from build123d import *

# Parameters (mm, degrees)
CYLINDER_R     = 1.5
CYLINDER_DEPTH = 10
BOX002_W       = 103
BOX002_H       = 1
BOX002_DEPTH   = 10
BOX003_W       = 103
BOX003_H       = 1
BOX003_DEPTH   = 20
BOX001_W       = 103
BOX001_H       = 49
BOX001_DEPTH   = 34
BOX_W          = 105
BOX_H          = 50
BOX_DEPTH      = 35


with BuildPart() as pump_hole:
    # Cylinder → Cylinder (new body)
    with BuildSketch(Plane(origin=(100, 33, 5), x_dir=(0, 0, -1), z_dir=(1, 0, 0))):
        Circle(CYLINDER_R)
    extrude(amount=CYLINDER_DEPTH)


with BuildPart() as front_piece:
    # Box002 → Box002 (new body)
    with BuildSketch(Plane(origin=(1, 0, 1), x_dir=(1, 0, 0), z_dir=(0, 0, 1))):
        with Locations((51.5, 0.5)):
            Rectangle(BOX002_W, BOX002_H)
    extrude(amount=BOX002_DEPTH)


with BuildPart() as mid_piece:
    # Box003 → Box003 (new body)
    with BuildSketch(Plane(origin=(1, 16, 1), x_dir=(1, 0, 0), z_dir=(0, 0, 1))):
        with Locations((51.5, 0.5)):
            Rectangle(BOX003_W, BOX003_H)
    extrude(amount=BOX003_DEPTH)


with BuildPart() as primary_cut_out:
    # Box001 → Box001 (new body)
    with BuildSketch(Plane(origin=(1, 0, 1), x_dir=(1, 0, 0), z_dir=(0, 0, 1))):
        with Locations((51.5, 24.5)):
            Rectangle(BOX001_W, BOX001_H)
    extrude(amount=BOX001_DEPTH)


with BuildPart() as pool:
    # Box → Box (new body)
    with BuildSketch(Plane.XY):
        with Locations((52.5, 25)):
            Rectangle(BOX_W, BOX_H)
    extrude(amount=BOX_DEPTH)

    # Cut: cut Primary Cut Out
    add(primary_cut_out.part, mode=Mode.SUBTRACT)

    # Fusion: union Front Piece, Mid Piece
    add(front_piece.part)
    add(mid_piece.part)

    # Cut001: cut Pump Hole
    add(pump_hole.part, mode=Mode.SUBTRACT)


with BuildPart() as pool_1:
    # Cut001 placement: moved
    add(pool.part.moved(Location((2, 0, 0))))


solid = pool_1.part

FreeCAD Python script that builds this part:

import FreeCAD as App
import Part
import Sketcher
from FreeCAD import Vector

doc = App.newDocument("Part")
body = doc.addObject("PartDesign::Body", "Body")

# Sketch on YZ plane
sketch1 = doc.addObject("Sketcher::SketchObject", "Sketch")
body.addObject(sketch1)
sketch1.AttachmentSupport = (doc.YZ_Plane, [""])
sketch1.MapMode = "FlatFace"
sketch1.AttachmentOffset = App.Placement(Vector(0, 0, 100), App.Rotation())
sketch1.addGeometry(Part.Circle(Vector(33, 5, 0), Vector(0, 0, 1), 1.5), False)
sketch1.addConstraint(Sketcher.Constraint("Diameter", 0, 3.0))
sketch1.addConstraint(Sketcher.Constraint("DistanceX", -1, 1, 0, 3, 33.0))
sketch1.addConstraint(Sketcher.Constraint("DistanceY", -1, 1, 0, 3, 5.0))
pad1 = doc.addObject("PartDesign::Pad", "Pad")
body.addObject(pad1)
pad1.Profile = sketch1
pad1.Length = 10
body2 = doc.addObject("PartDesign::Body", "Body001")

# Sketch on XY plane
sketch2 = doc.addObject("Sketcher::SketchObject", "Sketch001")
body2.addObject(sketch2)
sketch2.AttachmentSupport = (doc.getObject("XY_Plane001"), [""])
sketch2.MapMode = "FlatFace"
sketch2.AttachmentOffset = App.Placement(Vector(0, 0, 1), App.Rotation())
sketch2.addGeometry(Part.LineSegment(Vector(1, 1, 0), Vector(1, 0, 0)), False)
sketch2.addGeometry(Part.LineSegment(Vector(1, 0, 0), Vector(104, 0, 0)), False)
sketch2.addGeometry(Part.LineSegment(Vector(104, 0, 0), Vector(104, 1, 0)), False)
sketch2.addGeometry(Part.LineSegment(Vector(104, 1, 0), Vector(1, 1, 0)), False)
sketch2.addConstraint(Sketcher.Constraint("Coincident", 0, 2, 1, 1))
sketch2.addConstraint(Sketcher.Constraint("Coincident", 1, 2, 2, 1))
sketch2.addConstraint(Sketcher.Constraint("Coincident", 2, 2, 3, 1))
sketch2.addConstraint(Sketcher.Constraint("Coincident", 3, 2, 0, 1))
sketch2.addConstraint(Sketcher.Constraint("Vertical", 0))
sketch2.addConstraint(Sketcher.Constraint("Horizontal", 1))
sketch2.addConstraint(Sketcher.Constraint("Vertical", 2))
sketch2.addConstraint(Sketcher.Constraint("Horizontal", 3))
sketch2.addConstraint(Sketcher.Constraint("PointOnObject", 0, 2, -1))
sketch2.addConstraint(Sketcher.Constraint("DistanceX", 1, 1, 1, 2, 103.0))
sketch2.addConstraint(Sketcher.Constraint("DistanceY", 0, 2, 0, 1, 1.0))
sketch2.addConstraint(Sketcher.Constraint("DistanceX", -1, 1, 0, 2, 1.0))
pad2 = doc.addObject("PartDesign::Pad", "Pad001")
body2.addObject(pad2)
pad2.Profile = sketch2
pad2.Length = 10
body3 = doc.addObject("PartDesign::Body", "Body002")

# Sketch on XY plane
sketch3 = doc.addObject("Sketcher::SketchObject", "Sketch002")
body3.addObject(sketch3)
sketch3.AttachmentSupport = (doc.getObject("XY_Plane002"), [""])
sketch3.MapMode = "FlatFace"
sketch3.AttachmentOffset = App.Placement(Vector(0, 0, 1), App.Rotation())
sketch3.addGeometry(Part.LineSegment(Vector(1, 17, 0), Vector(1, 16, 0)), False)
sketch3.addGeometry(Part.LineSegment(Vector(1, 16, 0), Vector(104, 16, 0)), False)
sketch3.addGeometry(Part.LineSegment(Vector(104, 16, 0), Vector(104, 17, 0)), False)
sketch3.addGeometry(Part.LineSegment(Vector(104, 17, 0), Vector(1, 17, 0)), False)
sketch3.addConstraint(Sketcher.Constraint("Coincident", 0, 2, 1, 1))
sketch3.addConstraint(Sketcher.Constraint("Coincident", 1, 2, 2, 1))
sketch3.addConstraint(Sketcher.Constraint("Coincident", 2, 2, 3, 1))
sketch3.addConstraint(Sketcher.Constraint("Coincident", 3, 2, 0, 1))
sketch3.addConstraint(Sketcher.Constraint("Vertical", 0))
sketch3.addConstraint(Sketcher.Constraint("Horizontal", 1))
sketch3.addConstraint(Sketcher.Constraint("Vertical", 2))
sketch3.addConstraint(Sketcher.Constraint("Horizontal", 3))
sketch3.addConstraint(Sketcher.Constraint("DistanceX", 1, 1, 1, 2, 103.0))
sketch3.addConstraint(Sketcher.Constraint("DistanceY", 0, 2, 0, 1, 1.0))
sketch3.addConstraint(Sketcher.Constraint("DistanceX", -1, 1, 0, 2, 1.0))
sketch3.addConstraint(Sketcher.Constraint("DistanceY", -1, 1, 0, 2, 16.0))
pad3 = doc.addObject("PartDesign::Pad", "Pad002")
body3.addObject(pad3)
pad3.Profile = sketch3
pad3.Length = 20
body4 = doc.addObject("PartDesign::Body", "Body003")

# Sketch on XY plane
sketch4 = doc.addObject("Sketcher::SketchObject", "Sketch003")
body4.addObject(sketch4)
sketch4.AttachmentSupport = (doc.getObject("XY_Plane003"), [""])
sketch4.MapMode = "FlatFace"
sketch4.AttachmentOffset = App.Placement(Vector(0, 0, 1), App.Rotation())
sketch4.addGeometry(Part.LineSegment(Vector(1, 49, 0), Vector(1, 0, 0)), False)
sketch4.addGeometry(Part.LineSegment(Vector(1, 0, 0), Vector(104, 0, 0)), False)
sketch4.addGeometry(Part.LineSegment(Vector(104, 0, 0), Vector(104, 49, 0)), False)
sketch4.addGeometry(Part.LineSegment(Vector(104, 49, 0), Vector(1, 49, 0)), False)
sketch4.addConstraint(Sketcher.Constraint("Coincident", 0, 2, 1, 1))
sketch4.addConstraint(Sketcher.Constraint("Coincident", 1, 2, 2, 1))
sketch4.addConstraint(Sketcher.Constraint("Coincident", 2, 2, 3, 1))
sketch4.addConstraint(Sketcher.Constraint("Coincident", 3, 2, 0, 1))
sketch4.addConstraint(Sketcher.Constraint("Vertical", 0))
sketch4.addConstraint(Sketcher.Constraint("Horizontal", 1))
sketch4.addConstraint(Sketcher.Constraint("Vertical", 2))
sketch4.addConstraint(Sketcher.Constraint("Horizontal", 3))
sketch4.addConstraint(Sketcher.Constraint("PointOnObject", 0, 2, -1))
sketch4.addConstraint(Sketcher.Constraint("DistanceX", 1, 1, 1, 2, 103.0))
sketch4.addConstraint(Sketcher.Constraint("DistanceY", 0, 2, 0, 1, 49.0))
sketch4.addConstraint(Sketcher.Constraint("DistanceX", -1, 1, 0, 2, 1.0))
pad4 = doc.addObject("PartDesign::Pad", "Pad003")
body4.addObject(pad4)
pad4.Profile = sketch4
pad4.Length = 34
body5 = doc.addObject("PartDesign::Body", "Body004")

# Sketch on XY plane
sketch5 = doc.addObject("Sketcher::SketchObject", "Sketch004")
body5.addObject(sketch5)
sketch5.AttachmentSupport = (doc.getObject("XY_Plane004"), [""])
sketch5.MapMode = "FlatFace"
sketch5.addGeometry(Part.LineSegment(Vector(0, 50, 0), Vector(0, 0, 0)), False)
sketch5.addGeometry(Part.LineSegment(Vector(0, 0, 0), Vector(105, 0, 0)), False)
sketch5.addGeometry(Part.LineSegment(Vector(105, 0, 0), Vector(105, 50, 0)), False)
sketch5.addGeometry(Part.LineSegment(Vector(105, 50, 0), Vector(0, 50, 0)), False)
sketch5.addConstraint(Sketcher.Constraint("Coincident", 0, 2, 1, 1))
sketch5.addConstraint(Sketcher.Constraint("Coincident", 1, 2, 2, 1))
sketch5.addConstraint(Sketcher.Constraint("Coincident", 2, 2, 3, 1))
sketch5.addConstraint(Sketcher.Constraint("Coincident", 3, 2, 0, 1))
sketch5.addConstraint(Sketcher.Constraint("Vertical", 0))
sketch5.addConstraint(Sketcher.Constraint("Horizontal", 1))
sketch5.addConstraint(Sketcher.Constraint("Vertical", 2))
sketch5.addConstraint(Sketcher.Constraint("Horizontal", 3))
sketch5.addConstraint(Sketcher.Constraint("Coincident", 0, 2, -1, 1))
sketch5.addConstraint(Sketcher.Constraint("DistanceX", 1, 1, 1, 2, 105.0))
sketch5.addConstraint(Sketcher.Constraint("DistanceY", 0, 2, 0, 1, 50.0))
pad5 = doc.addObject("PartDesign::Pad", "Pad004")
body5.addObject(pad5)
pad5.Profile = sketch5
pad5.Length = 35
doc.recompute()

boolean = doc.addObject("PartDesign::Boolean", "Boolean")
body5.addObject(boolean)
boolean.Type = "Cut"
boolean.addObjects([body4])
doc.recompute()

boolean2 = doc.addObject("PartDesign::Boolean", "Boolean001")
body5.addObject(boolean2)
boolean2.Type = "Fuse"
boolean2.addObjects([body2])
doc.recompute()

boolean3 = doc.addObject("PartDesign::Boolean", "Boolean002")
body5.addObject(boolean3)
boolean3.Type = "Fuse"
boolean3.addObjects([body3])
doc.recompute()

boolean4 = doc.addObject("PartDesign::Boolean", "Boolean003")
body5.addObject(boolean4)
boolean4.Type = "Cut"
boolean4.addObjects([body])
body6 = doc.addObject("PartDesign::Body", "Body005")
doc.recompute()

body5.Placement = App.Placement(Vector(2, 0, 0), App.Rotation(Vector(0, 0, 1), 0))
boolean5 = doc.addObject("PartDesign::Boolean", "Boolean004")
body6.addObject(boolean5)
boolean5.Type = "Fuse"
boolean5.addObjects([body5])

doc.recompute()
